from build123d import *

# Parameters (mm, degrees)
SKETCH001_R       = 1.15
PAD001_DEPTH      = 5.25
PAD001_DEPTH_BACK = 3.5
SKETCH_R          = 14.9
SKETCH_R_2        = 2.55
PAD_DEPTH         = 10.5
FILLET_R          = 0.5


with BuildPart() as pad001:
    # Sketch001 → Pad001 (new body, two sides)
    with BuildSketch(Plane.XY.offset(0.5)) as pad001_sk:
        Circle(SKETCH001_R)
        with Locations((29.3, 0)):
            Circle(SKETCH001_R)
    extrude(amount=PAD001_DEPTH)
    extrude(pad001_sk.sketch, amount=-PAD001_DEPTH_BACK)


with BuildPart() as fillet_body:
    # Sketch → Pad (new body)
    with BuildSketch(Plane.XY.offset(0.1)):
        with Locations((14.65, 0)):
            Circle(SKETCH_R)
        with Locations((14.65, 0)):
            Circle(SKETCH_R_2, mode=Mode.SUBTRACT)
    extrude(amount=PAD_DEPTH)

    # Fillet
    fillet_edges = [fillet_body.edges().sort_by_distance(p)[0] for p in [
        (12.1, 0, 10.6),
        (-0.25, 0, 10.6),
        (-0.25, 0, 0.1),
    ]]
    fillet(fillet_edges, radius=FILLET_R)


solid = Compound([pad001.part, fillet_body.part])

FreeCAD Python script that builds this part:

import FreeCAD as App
import Part
import Sketcher


def edges_at(feature, points):
    """Names of the edges that pass closest to the given points."""
    edges = feature.Shape.Edges
    near = lambda p: min(range(len(edges)), key=lambda i: edges[i].distToShape(Part.Vertex(*p))[0])
    return sorted({f"Edge{near(p) + 1}" for p in points})

doc = App.newDocument("Part")
body = doc.addObject("PartDesign::Body", "Body")
body.AllowCompound = True

# Sketch on XY plane
sketch1 = doc.addObject("Sketcher::SketchObject", "Sketch")
body.addObject(sketch1)
sketch1.AttachmentSupport = (doc.XY_Plane, [""])
sketch1.MapMode = "FlatFace"
sketch1.AttachmentOffset = App.Placement(App.Vector(0, 0, 0.5), App.Rotation())
sketch1.addGeometry(Part.Circle(App.Vector(0, 0, 0), App.Vector(0, 0, 1), 1.15), False)
sketch1.addGeometry(Part.Circle(App.Vector(29.3, 0, 0), App.Vector(0, 0, 1), 1.15), False)
sketch1.addConstraint(Sketcher.Constraint("Coincident", 0, 3, -1, 1))
sketch1.addConstraint(Sketcher.Constraint("Equal", 0, 1))
sketch1.addConstraint(Sketcher.Constraint("PointOnObject", 1, 3, -1))
sketch1.addConstraint(Sketcher.Constraint("Diameter", 0, 2.3))
sketch1.addConstraint(Sketcher.Constraint("DistanceX", -1, 1, 1, 3, 29.3))
pad1 = doc.addObject("PartDesign::Pad", "Pad")
body.addObject(pad1)
pad1.Profile = sketch1
pad1.Type = "TwoLengths"
pad1.Length = 5.25
pad1.Length2 = 3.5
body2 = doc.addObject("PartDesign::Body", "Body001")

# Sketch on XY plane
sketch2 = doc.addObject("Sketcher::SketchObject", "Sketch001")
body2.addObject(sketch2)
sketch2.AttachmentSupport = (doc.getObject("XY_Plane001"), [""])
sketch2.MapMode = "FlatFace"
sketch2.AttachmentOffset = App.Placement(App.Vector(0, 0, 0.1), App.Rotation())
sketch2.addGeometry(Part.Circle(App.Vector(14.65, 0, 0), App.Vector(0, 0, 1), 14.9), False)
sketch2.addGeometry(Part.Circle(App.Vector(14.65, 0, 0), App.Vector(0, 0, 1), 2.55), False)
sketch2.addConstraint(Sketcher.Constraint("Coincident", 1, 3, 0, 3))
sketch2.addConstraint(Sketcher.Constraint("PointOnObject", 0, 3, -1))
sketch2.addConstraint(Sketcher.Constraint("Diameter", 0, 29.8))
sketch2.addConstraint(Sketcher.Constraint("Diameter", 1, 5.1))
sketch2.addConstraint(Sketcher.Constraint("DistanceX", -1, 1, 0, 3, 14.65))
pad2 = doc.addObject("PartDesign::Pad", "Pad001")
body2.addObject(pad2)
pad2.Profile = sketch2
pad2.Length = 10.5
doc.recompute()

fillet = doc.addObject("PartDesign::Fillet", "Fillet")
body2.addObject(fillet)
fillet.Base = (pad2, edges_at(pad2, [(12.1, 0, 10.6), (-0.25, 0, 10.6), (-0.25, 0, 0.1)]))
fillet.Radius = 0.5

doc.recompute()
